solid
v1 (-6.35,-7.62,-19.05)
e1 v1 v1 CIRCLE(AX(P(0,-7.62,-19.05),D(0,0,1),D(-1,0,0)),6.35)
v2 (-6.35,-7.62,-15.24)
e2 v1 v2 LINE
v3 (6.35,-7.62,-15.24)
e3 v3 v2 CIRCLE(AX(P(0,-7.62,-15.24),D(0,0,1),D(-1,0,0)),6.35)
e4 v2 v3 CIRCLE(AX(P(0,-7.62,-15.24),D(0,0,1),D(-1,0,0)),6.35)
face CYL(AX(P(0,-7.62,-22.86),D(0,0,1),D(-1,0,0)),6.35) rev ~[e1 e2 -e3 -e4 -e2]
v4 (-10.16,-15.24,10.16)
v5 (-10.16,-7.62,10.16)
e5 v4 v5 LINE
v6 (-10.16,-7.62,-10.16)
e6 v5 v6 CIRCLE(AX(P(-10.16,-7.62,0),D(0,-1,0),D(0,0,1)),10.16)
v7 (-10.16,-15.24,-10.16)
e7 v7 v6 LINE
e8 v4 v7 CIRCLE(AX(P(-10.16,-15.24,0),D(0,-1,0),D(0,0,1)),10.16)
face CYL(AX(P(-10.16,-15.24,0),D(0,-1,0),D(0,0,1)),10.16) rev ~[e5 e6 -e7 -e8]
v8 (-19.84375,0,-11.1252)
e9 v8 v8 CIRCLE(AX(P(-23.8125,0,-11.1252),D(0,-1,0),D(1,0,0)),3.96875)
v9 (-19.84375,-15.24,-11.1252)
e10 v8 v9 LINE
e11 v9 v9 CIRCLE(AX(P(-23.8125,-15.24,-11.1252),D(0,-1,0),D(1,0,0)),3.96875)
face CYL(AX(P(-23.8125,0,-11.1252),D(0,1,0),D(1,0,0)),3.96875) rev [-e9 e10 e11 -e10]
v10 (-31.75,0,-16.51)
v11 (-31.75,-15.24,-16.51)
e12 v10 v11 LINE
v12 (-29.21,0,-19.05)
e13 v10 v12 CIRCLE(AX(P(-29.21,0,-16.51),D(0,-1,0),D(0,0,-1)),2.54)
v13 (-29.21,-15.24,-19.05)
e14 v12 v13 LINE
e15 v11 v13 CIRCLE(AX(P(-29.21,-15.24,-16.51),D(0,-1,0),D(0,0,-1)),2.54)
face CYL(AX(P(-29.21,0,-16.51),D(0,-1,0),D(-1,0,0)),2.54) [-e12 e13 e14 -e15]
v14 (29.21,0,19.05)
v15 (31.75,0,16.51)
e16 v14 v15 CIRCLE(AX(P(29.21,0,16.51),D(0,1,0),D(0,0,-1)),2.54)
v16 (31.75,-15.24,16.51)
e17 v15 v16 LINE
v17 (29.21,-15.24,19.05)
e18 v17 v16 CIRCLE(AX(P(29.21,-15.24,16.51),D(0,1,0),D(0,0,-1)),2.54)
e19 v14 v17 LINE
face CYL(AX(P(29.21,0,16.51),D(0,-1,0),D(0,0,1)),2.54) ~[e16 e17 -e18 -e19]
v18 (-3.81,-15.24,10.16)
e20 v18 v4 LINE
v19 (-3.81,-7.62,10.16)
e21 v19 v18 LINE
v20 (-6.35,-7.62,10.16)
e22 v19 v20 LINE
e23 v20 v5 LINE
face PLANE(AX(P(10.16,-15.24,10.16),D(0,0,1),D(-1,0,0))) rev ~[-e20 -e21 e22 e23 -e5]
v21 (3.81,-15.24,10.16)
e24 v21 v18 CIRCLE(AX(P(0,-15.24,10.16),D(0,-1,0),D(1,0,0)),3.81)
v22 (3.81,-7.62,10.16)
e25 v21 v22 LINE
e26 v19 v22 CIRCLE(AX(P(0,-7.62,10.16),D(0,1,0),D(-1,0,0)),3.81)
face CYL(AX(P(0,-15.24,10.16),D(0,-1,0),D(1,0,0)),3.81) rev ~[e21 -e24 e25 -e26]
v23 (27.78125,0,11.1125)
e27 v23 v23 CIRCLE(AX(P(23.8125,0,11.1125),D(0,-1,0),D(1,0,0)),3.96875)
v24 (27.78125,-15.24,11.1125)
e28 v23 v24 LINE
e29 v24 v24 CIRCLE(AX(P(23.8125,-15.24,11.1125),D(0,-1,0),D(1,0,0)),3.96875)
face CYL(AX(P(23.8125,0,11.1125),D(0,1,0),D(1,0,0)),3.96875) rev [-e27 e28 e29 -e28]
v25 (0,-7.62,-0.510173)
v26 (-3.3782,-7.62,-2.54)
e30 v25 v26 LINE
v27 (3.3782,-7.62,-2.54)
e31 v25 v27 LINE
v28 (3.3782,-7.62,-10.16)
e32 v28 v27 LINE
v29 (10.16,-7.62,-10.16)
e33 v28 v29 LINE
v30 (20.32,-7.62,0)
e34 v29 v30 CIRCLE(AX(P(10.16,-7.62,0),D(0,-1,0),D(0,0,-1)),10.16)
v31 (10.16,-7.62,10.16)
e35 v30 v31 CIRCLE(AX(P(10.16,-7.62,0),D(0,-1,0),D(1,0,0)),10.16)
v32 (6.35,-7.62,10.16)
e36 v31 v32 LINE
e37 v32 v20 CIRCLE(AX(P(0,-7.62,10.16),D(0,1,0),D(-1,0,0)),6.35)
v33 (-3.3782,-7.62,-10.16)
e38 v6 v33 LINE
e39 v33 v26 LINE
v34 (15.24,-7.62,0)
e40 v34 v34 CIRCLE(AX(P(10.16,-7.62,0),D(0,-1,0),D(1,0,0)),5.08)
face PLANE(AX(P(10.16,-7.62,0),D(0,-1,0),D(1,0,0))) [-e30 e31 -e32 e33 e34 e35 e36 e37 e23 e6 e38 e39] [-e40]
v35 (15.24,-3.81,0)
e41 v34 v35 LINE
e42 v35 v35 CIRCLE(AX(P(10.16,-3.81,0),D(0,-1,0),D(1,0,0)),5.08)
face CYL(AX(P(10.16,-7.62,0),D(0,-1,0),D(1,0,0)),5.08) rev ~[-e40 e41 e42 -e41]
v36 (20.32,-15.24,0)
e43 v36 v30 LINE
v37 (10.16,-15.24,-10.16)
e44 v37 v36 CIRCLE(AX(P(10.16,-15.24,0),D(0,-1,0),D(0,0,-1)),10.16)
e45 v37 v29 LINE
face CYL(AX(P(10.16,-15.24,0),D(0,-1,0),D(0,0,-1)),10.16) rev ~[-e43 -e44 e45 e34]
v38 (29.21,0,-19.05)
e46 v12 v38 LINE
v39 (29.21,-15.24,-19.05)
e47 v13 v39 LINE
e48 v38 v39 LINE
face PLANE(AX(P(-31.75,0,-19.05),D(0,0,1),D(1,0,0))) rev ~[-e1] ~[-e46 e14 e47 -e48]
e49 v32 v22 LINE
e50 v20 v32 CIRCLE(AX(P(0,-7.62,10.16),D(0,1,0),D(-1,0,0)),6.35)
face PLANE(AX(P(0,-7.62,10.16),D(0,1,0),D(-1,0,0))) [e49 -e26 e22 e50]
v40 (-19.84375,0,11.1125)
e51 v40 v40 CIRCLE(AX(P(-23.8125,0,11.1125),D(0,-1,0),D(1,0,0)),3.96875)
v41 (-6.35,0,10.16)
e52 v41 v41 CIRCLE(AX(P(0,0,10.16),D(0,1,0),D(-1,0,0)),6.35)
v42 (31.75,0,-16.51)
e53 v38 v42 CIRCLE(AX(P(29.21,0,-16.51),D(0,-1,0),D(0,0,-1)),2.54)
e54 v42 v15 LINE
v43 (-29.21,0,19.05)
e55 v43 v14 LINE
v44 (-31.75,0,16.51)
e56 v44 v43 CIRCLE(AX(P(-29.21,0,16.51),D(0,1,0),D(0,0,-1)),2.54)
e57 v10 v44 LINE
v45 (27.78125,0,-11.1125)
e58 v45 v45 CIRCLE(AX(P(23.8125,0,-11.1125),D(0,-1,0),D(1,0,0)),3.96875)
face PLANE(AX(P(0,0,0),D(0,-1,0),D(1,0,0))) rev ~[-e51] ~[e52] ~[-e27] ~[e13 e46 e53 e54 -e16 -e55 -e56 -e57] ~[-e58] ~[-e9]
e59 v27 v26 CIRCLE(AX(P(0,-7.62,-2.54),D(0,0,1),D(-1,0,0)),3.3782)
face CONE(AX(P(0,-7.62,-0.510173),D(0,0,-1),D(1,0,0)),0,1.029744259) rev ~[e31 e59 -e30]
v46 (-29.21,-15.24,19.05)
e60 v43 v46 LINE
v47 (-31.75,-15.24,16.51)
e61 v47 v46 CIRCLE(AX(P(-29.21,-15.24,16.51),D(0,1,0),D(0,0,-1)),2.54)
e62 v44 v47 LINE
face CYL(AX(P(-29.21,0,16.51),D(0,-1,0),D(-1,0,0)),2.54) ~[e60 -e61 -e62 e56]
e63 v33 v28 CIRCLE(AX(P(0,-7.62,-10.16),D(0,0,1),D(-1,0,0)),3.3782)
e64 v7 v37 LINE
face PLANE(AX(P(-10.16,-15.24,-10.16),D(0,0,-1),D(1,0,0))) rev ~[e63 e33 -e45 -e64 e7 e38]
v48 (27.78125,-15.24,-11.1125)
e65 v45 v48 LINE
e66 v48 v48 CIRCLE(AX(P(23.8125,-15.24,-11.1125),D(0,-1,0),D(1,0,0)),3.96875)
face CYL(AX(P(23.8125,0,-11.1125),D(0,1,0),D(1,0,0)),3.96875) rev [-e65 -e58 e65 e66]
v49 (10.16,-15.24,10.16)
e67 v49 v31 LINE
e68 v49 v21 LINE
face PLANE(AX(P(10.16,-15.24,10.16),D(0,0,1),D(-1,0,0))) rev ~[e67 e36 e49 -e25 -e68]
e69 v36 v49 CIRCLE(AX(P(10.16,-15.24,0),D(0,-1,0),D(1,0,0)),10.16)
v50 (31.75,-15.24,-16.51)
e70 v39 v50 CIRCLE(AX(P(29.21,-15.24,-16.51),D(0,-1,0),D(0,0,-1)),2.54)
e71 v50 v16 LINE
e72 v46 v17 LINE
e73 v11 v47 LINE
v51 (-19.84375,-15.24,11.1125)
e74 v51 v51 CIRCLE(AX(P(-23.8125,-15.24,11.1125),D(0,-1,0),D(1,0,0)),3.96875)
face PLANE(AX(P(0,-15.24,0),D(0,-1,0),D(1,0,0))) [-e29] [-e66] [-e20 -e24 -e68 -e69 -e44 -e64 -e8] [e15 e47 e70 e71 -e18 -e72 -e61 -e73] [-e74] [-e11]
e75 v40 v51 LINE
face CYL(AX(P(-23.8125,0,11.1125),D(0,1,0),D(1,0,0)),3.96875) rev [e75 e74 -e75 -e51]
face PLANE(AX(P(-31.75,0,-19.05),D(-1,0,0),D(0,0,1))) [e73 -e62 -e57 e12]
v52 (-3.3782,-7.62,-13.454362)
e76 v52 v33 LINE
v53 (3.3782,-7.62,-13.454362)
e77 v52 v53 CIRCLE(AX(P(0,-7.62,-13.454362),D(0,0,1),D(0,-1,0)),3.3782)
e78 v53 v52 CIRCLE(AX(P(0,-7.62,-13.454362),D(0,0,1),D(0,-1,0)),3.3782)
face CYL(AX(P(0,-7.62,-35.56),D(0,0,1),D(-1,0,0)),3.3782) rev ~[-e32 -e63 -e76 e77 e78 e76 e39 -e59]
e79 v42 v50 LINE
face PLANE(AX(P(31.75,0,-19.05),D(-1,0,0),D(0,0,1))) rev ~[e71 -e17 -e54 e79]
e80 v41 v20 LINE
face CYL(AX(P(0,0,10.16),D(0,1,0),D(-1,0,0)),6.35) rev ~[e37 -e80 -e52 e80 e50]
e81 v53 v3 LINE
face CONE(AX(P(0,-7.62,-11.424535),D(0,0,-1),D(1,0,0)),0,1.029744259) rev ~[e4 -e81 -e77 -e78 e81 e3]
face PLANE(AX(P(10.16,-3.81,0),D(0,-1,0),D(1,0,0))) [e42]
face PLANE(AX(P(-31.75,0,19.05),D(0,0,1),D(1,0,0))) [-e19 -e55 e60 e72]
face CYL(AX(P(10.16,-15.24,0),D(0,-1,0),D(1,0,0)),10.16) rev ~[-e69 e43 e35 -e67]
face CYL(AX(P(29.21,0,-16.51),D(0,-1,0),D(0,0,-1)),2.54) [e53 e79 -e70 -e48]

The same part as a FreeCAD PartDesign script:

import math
import FreeCAD as App
import Part
import Sketcher

V = App.Vector
Q = App.Units.Quantity


def edges_at(feature, points):
    """Names of the edges that pass closest to the given points."""
    edges = feature.Shape.Edges
    near = lambda p: min(range(len(edges)), key=lambda i: edges[i].distToShape(Part.Vertex(*p))[0])
    return sorted({f"Edge{near(p) + 1}" for p in points})


def add_polygon(sketch, points):
    """Adds a closed chain of lines whose ends are joined by coincident constraints."""
    first, n = sketch.GeometryCount, len(points)
    for a, b in zip(points, points[1:] + points[:1]):
        sketch.addGeometry(Part.LineSegment(App.Vector(*a, 0), App.Vector(*b, 0)), False)
    for i in range(n):
        sketch.addConstraint(Sketcher.Constraint("Coincident", first + i, 2, first + (i + 1) % n, 1))

doc = App.newDocument("Part")
params = doc.addObject("Spreadsheet::Sheet", "Params")
for row, (alias, value) in enumerate([
    ("sketch1_diameter", "0.3125 in"),
    ("sketch1_width", "2.5 in"),
    ("sketch1_height", "1.5 in"),
    ("pad1_length", "0.6 in"),
    ("sketch2_radius", "0.4 in"),
    ("sketch2_width", "0.8 in"),
    ("pocket1_length", "0.3 in"),
    ("sketch3_diameter", "0.4 in"),
    ("pocket2_length", "0.15 in"),
    ("sketch4_diameter", "0.3 in"),
    ("pocket3_length", "1 in"),
    ("sketch5_diameter", "0.5 in"),
    ("sketch5_diameter2", "0.3 in"),
    ("pocket4_length", "0.3 in"),
    ("sketch6_diameter", "0.266 in"),
    ("hole_diameter", "0.266 in"),
    ("hole_depth", "0.65 in"),
    ("sketch7_diameter", "0.5 in"),
    ("hole2_diameter", "0.5 in"),
    ("hole2_depth", "0.15 in"),
    ("fillet_radius", "0.1 in"),
], start=1):
    params.set(f"A{row}", alias)
    params.set(f"B{row}", "=" + value)
    params.setAlias(f"B{row}", alias)

body = doc.addObject("PartDesign::Body", "Body")

# Sketch on XZ plane
sketch1 = body.newObject("Sketcher::SketchObject", "Sketch")
sketch1.AttachmentSupport = (doc.getObject("XZ_Plane"), [""])
sketch1.MapMode = "FlatFace"
add_polygon(sketch1, [(-31.8, 19.1), (-31.8, -19.1), (31.8, -19.1), (31.8, 19.1)])  # lines 0-3
sketch1.addGeometry(Part.Circle(V(-23.8, -11.1, 0), V(0, 0, 1), 4), False)  # 4
sketch1.addGeometry(Part.Circle(V(23.8, -11.1, 0), V(0, 0, 1), 4), False)  # 5
sketch1.addGeometry(Part.Circle(V(-23.8, 11.1, 0), V(0, 0, 1), 4), False)  # 6
sketch1.addGeometry(Part.Circle(V(23.8, 11.1, 0), V(0, 0, 1), 4), False)  # 7
sketch1.addConstraint([
    Sketcher.Constraint("Vertical", 0),
    Sketcher.Constraint("Horizontal", 1),
    Sketcher.Constraint("Vertical", 2),
    Sketcher.Constraint("Horizontal", 3),
    Sketcher.Constraint("Equal", 4, 5),
    Sketcher.Constraint("Equal", 5, 6),
    Sketcher.Constraint("Equal", 6, 7),
    Sketcher.Constraint("Symmetric", 5, 3, 6, 3, -1, 1),
    Sketcher.Constraint("Symmetric", 0, 2, 2, 2, -1, 1),
    Sketcher.Constraint("Symmetric", 6, 3, 7, 3, -2),
    Sketcher.Constraint("Vertical", 4, 3, 6, 3),
    Sketcher.Constraint("Diameter", 4, Q("0.3125 in")),
    Sketcher.Constraint("DistanceX", 1, 1, 1, 2, Q("2.5 in")),
    Sketcher.Constraint("DistanceY", 0, 2, 0, 1, Q("1.5 in")),
    Sketcher.Constraint("DistanceX", 4, 3, -1, 1, Q("0.9375 in")),
    Sketcher.Constraint("DistanceY", 4, 3, -1, 1, Q("0.438 in")),
    Sketcher.Constraint("DistanceY", 5, 3, -1, 1, Q("0.4375 in")),
])
sketch1.setExpression("Constraints[15]", "Params.sketch1_diameter")
sketch1.setExpression("Constraints[16]", "Params.sketch1_width")
sketch1.setExpression("Constraints[17]", "Params.sketch1_height")
pad1 = body.newObject("PartDesign::Pad", "Pad")
pad1.Profile = sketch1
pad1.setExpression("Length", "Params.pad1_length")

# Sketch on XZ plane
sketch2 = body.newObject("Sketcher::SketchObject", "Sketch001")
sketch2.AttachmentSupport = (doc.getObject("XZ_Plane"), [""])
sketch2.MapMode = "FlatFace"
sketch2.AttachmentOffset = App.Placement(V(0, 0, 0.6 * 25.4), App.Rotation())
sketch2.addGeometry([
    Part.ArcOfCircle(Part.Circle(V(10, 0, 0), V(0, 0, 1), 10), math.radians(-90), math.radians(0)),  # 0
    Part.ArcOfCircle(Part.Circle(V(10, 0, 0), V(0, 0, 1), 10), math.radians(0), math.radians(90)),  # 1
    Part.LineSegment(V(10, 10, 0), V(-10, 10, 0)),  # 2
    Part.ArcOfCircle(Part.Circle(V(-10, 0, 0), V(0, 0, 1), 10), math.radians(90), math.radians(270)),  # 3
    Part.LineSegment(V(-10, -10, 0), V(10, -10, 0)),  # 4
], False)
sketch2.addConstraint([
    Sketcher.Constraint("Tangent", 0, 2, 1, 1),
    Sketcher.Constraint("Tangent", 1, 2, 2, 1),
    Sketcher.Constraint("Tangent", 2, 2, 3, 1),
    Sketcher.Constraint("Tangent", 3, 2, 4, 1),
    Sketcher.Constraint("Tangent", 4, 2, 0, 1),
    Sketcher.Constraint("Horizontal", 2),
    Sketcher.Constraint("Horizontal", 4),
    Sketcher.Constraint("Equal", 0, 1),
    Sketcher.Constraint("Symmetric", 0, 3, 3, 3, -1, 1),
    Sketcher.Constraint("PointOnObject", 0, 2, -1),
    Sketcher.Constraint("Radius", 0, Q("0.4 in")),
    Sketcher.Constraint("DistanceX", 2, 2, 2, 1, Q("0.8 in")),
])
sketch2.setExpression("Constraints[10]", "Params.sketch2_radius")
sketch2.setExpression("Constraints[11]", "Params.sketch2_width")
pocket1 = body.newObject("PartDesign::Pocket", "Pocket")
pocket1.Profile = sketch2
pocket1.setExpression("Length", "Params.pocket1_length")

# Sketch on XZ plane
sketch3 = body.newObject("Sketcher::SketchObject", "Sketch002")
sketch3.AttachmentSupport = (doc.getObject("XZ_Plane"), [""])
sketch3.MapMode = "FlatFace"
sketch3.AttachmentOffset = App.Placement(V(0, 0, 0.3 * 25.4), App.Rotation())
sketch3.addGeometry(Part.Circle(V(10, 0, 0), V(0, 0, 1), 5), False)
sketch3.addConstraint([
    Sketcher.Constraint("PointOnObject", 0, 3, -1),
    Sketcher.Constraint("Diameter", 0, Q("0.4 in")),
    Sketcher.Constraint("DistanceX", -1, 1, 0, 3, Q("0.4 in")),
])
sketch3.setExpression("Constraints[1]", "Params.sketch3_diameter")
pocket2 = body.newObject("PartDesign::Pocket", "Pocket001")
pocket2.Profile = sketch3
pocket2.setExpression("Length", "Params.pocket2_length")

# Sketch on XZ plane
sketch4 = body.newObject("Sketcher::SketchObject", "Sketch003")
sketch4.AttachmentSupport = (doc.getObject("XZ_Plane"), [""])
sketch4.MapMode = "FlatFace"
sketch4.AttachmentOffset = App.Placement(V(0, 0, 0.6 * 25.4), App.Rotation())
sketch4.addGeometry(Part.Circle(V(0, 10.2, 0), V(0, 0, 1), 3.8), False)
sketch4.addConstraint([
    Sketcher.Constraint("PointOnObject", 0, 3, -2),
    Sketcher.Constraint("Diameter", 0, Q("0.3 in")),
    Sketcher.Constraint("DistanceY", -1, 1, 0, 3, Q("0.4 in")),
])
sketch4.setExpression("Constraints[1]", "Params.sketch4_diameter")
pocket3 = body.newObject("PartDesign::Pocket", "Pocket002")
pocket3.Profile = sketch4
pocket3.setExpression("Length", "Params.pocket3_length")

# Sketch on XZ plane
sketch5 = body.newObject("Sketcher::SketchObject", "Sketch004")
sketch5.AttachmentSupport = (doc.getObject("XZ_Plane"), [""])
sketch5.MapMode = "FlatFace"
sketch5.addGeometry([
    Part.Circle(V(0, 10.2, 0), V(0, 0, 1), 6.3),
    Part.Circle(V(0, 10.2, 0), V(0, 0, 1), 3.8),
], False)
sketch5.addConstraint([
    Sketcher.Constraint("Coincident", 1, 3, 0, 3),
    Sketcher.Constraint("PointOnObject", 0, 3, -2),
    Sketcher.Constraint("Diameter", 0, Q("0.5 in")),
    Sketcher.Constraint("Diameter", 1, Q("0.3 in")),
    Sketcher.Constraint("DistanceY", -1, 1, 0, 3, Q("0.4 in")),
])
sketch5.setExpression("Constraints[2]", "Params.sketch5_diameter")
sketch5.setExpression("Constraints[3]", "Params.sketch5_diameter2")
pocket4 = body.newObject("PartDesign::Pocket", "Pocket003")
pocket4.Profile = sketch5
pocket4.setExpression("Length", "Params.pocket4_length")
pocket4.Reversed = True

# Sketch on XY plane
sketch6 = body.newObject("Sketcher::SketchObject", "Sketch005")
sketch6.AttachmentSupport = (doc.getObject("XY_Plane"), [""])
sketch6.MapMode = "FlatFace"
sketch6.AttachmentOffset = App.Placement(V(0, 0, -0.75 * 25.4), App.Rotation())
sketch6.addGeometry(Part.Circle(V(0, -7.6, 0), V(0, 0, 1), 3.4), False)
sketch6.addConstraint([
    Sketcher.Constraint("PointOnObject", 0, 3, -2),
    Sketcher.Constraint("Diameter", 0, Q("0.266 in")),
    Sketcher.Constraint("DistanceY", 0, 3, -1, 1, Q("0.3 in")),
])
sketch6.setExpression("Constraints[1]", "Params.sketch6_diameter")
doc.recompute()
hole = body.newObject("PartDesign::Hole", "Hole")
hole.Profile = sketch6
hole.ThreadType = "None"
hole.setExpression("Diameter", "Params.hole_diameter")
hole.DepthType = "Dimension"
hole.setExpression("Depth", "Params.hole_depth")
hole.DrillPoint = "Angled"
hole.DrillPointAngle = 118
hole.Reversed = True

# Sketch on XY plane
sketch7 = body.newObject("Sketcher::SketchObject", "Sketch006")
sketch7.AttachmentSupport = (doc.getObject("XY_Plane"), [""])
sketch7.MapMode = "FlatFace"
sketch7.AttachmentOffset = App.Placement(V(0, 0, -0.75 * 25.4), App.Rotation())
sketch7.addGeometry(Part.Circle(V(0, -8, 0), V(0, 0, 1), 6), False)
sketch7.addConstraint([
    Sketcher.Constraint("PointOnObject", 0, 3, -2),
    Sketcher.Constraint("Diameter", 0, Q("0.5 in")),
    Sketcher.Constraint("DistanceY", 0, 3, -1, 1, Q("0.3 in")),
])
sketch7.setExpression("Constraints[1]", "Params.sketch7_diameter")
doc.recompute()
hole2 = body.newObject("PartDesign::Hole", "Hole001")
hole2.Profile = sketch7
hole2.ThreadType = "None"
hole2.setExpression("Diameter", "Params.hole2_diameter")
hole2.DepthType = "Dimension"
hole2.setExpression("Depth", "Params.hole2_depth")
hole2.DrillPoint = "Angled"
hole2.DrillPointAngle = 118
hole2.Reversed = True
doc.recompute()

fillet = body.newObject("PartDesign::Fillet", "Fillet")
fillet.Base = (hole2, edges_at(hole2, [
    (31.75, -7.62, -19.05),
    (-31.75, -7.62, -19.05),
    (31.75, -7.62, 19.05),
    (-31.75, -7.62, 19.05),
]))
fillet.setExpression("Radius", "Params.fillet_radius")

doc.recompute()
